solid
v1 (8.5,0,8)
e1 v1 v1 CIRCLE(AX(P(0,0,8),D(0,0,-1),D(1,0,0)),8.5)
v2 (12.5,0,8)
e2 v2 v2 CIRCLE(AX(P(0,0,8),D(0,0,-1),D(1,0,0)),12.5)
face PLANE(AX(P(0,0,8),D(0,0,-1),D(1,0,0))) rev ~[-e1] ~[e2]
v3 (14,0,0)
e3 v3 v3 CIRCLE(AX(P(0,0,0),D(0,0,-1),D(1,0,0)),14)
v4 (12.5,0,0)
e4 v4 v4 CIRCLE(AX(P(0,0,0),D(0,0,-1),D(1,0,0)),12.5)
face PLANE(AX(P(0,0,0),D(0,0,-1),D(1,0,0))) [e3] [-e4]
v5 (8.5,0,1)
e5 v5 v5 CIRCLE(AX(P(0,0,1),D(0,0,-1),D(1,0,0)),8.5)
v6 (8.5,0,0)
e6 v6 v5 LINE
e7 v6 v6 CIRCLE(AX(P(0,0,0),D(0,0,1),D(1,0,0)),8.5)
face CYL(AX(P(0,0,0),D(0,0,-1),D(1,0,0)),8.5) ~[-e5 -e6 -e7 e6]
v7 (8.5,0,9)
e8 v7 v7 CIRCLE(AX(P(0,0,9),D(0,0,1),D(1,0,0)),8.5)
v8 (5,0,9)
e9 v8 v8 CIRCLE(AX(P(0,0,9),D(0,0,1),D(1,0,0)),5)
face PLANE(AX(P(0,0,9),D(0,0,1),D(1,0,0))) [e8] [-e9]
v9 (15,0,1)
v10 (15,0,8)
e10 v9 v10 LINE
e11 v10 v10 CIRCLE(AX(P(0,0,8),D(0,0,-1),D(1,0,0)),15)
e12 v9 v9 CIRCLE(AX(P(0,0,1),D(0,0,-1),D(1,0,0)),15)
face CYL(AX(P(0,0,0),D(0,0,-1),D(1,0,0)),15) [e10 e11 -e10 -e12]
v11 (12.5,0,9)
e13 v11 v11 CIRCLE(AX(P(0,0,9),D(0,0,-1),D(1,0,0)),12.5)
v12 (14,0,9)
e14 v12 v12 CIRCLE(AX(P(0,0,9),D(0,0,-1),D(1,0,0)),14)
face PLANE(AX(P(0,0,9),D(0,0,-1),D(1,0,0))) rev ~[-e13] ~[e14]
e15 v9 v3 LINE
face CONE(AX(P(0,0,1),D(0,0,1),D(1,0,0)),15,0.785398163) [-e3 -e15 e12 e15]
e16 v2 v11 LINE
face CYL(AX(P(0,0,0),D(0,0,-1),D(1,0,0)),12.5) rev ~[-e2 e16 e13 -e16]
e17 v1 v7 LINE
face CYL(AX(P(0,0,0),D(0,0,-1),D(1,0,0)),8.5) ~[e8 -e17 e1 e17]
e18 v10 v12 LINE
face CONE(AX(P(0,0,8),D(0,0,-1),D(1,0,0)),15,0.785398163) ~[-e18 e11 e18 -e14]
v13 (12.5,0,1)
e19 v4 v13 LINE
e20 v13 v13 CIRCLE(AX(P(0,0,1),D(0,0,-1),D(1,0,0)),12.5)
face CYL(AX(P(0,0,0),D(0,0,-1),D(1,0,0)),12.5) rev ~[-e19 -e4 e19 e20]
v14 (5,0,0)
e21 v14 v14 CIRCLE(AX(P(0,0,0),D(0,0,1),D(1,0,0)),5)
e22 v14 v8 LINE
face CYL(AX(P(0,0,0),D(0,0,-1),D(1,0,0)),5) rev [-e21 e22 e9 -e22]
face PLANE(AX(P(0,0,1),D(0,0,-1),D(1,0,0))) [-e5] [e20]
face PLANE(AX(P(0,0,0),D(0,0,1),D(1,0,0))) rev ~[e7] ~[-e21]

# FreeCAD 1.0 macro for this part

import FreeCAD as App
import Part
import Sketcher
Q = App.Units.Quantity


def edges_at(feature, points):
    """Names of the edges that pass closest to the given points."""
    edges = feature.Shape.Edges
    near = lambda p: min(range(len(edges)), key=lambda i: edges[i].distToShape(Part.Vertex(*p))[0])
    return sorted({f"Edge{near(p) + 1}" for p in points})

doc = App.newDocument("Part")
body = doc.addObject("PartDesign::Body", "Body")

# Sketch on XY plane
sketch1 = body.newObject("Sketcher::SketchObject", "Sketch")
sketch1.AttachmentSupport = (doc.getObject("XY_Plane"), [""])
sketch1.MapMode = "FlatFace"
sketch1.addGeometry([
    Part.Circle(App.Vector(0, 0, 0), App.Vector(0, 0, 1), 8),
    Part.Circle(App.Vector(0, 0, 0), App.Vector(0, 0, 1), 5),
], False)
sketch1.addConstraint([
    Sketcher.Constraint("Coincident", 0, 3, -1, 1),
    Sketcher.Constraint("Coincident", 1, 3, -1, 1),
    Sketcher.Constraint("Diameter", 0, Q("17 mm")),
    Sketcher.Constraint("Diameter", 1, Q("10 mm")),
])
pad1 = body.newObject("PartDesign::Pad", "Pad")
pad1.Profile = sketch1
pad1.Length = 9

# Sketch on XY plane
sketch2 = body.newObject("Sketcher::SketchObject", "Sketch001")
sketch2.AttachmentSupport = (doc.getObject("XY_Plane"), [""])
sketch2.MapMode = "FlatFace"
sketch2.AttachmentOffset = App.Placement(App.Vector(0, 0, 1), App.Rotation())
sketch2.addGeometry([
    Part.Circle(App.Vector(0, 0, 0), App.Vector(0, 0, 1), 12),
    Part.Circle(App.Vector(0, 0, 0), App.Vector(0, 0, 1), 8),
], False)
sketch2.addConstraint([
    Sketcher.Constraint("Coincident", 0, 3, -1, 1),
    Sketcher.Constraint("Coincident", 1, 3, -1, 1),
    Sketcher.Constraint("Diameter", 0, Q("25 mm")),
    Sketcher.Constraint("Diameter", 1, Q("17 mm")),
])
pad2 = body.newObject("PartDesign::Pad", "Pad001")
pad2.Profile = sketch2
pad2.Length = 7

# Sketch on XY plane
sketch3 = body.newObject("Sketcher::SketchObject", "Sketch002")
sketch3.AttachmentSupport = (doc.getObject("XY_Plane"), [""])
sketch3.MapMode = "FlatFace"
sketch3.addGeometry([
    Part.Circle(App.Vector(0, 0, 0), App.Vector(0, 0, 1), 15),
    Part.Circle(App.Vector(0, 0, 0), App.Vector(0, 0, 1), 12),
], False)
sketch3.addConstraint([
    Sketcher.Constraint("Coincident", 0, 3, -1, 1),
    Sketcher.Constraint("Coincident", 1, 3, -1, 1),
    Sketcher.Constraint("Diameter", 0, Q("30 mm")),
    Sketcher.Constraint("Diameter", 1, Q("25 mm")),
])
pad3 = body.newObject("PartDesign::Pad", "Pad002")
pad3.Profile = sketch3
pad3.Length = 9
doc.recompute()

chamfer = body.newObject("PartDesign::Chamfer", "Chamfer")
chamfer.Base = (pad3, edges_at(pad3, [(-15, 0, 9), (-15, 0, 0)]))
chamfer.Size = 1

doc.recompute()
